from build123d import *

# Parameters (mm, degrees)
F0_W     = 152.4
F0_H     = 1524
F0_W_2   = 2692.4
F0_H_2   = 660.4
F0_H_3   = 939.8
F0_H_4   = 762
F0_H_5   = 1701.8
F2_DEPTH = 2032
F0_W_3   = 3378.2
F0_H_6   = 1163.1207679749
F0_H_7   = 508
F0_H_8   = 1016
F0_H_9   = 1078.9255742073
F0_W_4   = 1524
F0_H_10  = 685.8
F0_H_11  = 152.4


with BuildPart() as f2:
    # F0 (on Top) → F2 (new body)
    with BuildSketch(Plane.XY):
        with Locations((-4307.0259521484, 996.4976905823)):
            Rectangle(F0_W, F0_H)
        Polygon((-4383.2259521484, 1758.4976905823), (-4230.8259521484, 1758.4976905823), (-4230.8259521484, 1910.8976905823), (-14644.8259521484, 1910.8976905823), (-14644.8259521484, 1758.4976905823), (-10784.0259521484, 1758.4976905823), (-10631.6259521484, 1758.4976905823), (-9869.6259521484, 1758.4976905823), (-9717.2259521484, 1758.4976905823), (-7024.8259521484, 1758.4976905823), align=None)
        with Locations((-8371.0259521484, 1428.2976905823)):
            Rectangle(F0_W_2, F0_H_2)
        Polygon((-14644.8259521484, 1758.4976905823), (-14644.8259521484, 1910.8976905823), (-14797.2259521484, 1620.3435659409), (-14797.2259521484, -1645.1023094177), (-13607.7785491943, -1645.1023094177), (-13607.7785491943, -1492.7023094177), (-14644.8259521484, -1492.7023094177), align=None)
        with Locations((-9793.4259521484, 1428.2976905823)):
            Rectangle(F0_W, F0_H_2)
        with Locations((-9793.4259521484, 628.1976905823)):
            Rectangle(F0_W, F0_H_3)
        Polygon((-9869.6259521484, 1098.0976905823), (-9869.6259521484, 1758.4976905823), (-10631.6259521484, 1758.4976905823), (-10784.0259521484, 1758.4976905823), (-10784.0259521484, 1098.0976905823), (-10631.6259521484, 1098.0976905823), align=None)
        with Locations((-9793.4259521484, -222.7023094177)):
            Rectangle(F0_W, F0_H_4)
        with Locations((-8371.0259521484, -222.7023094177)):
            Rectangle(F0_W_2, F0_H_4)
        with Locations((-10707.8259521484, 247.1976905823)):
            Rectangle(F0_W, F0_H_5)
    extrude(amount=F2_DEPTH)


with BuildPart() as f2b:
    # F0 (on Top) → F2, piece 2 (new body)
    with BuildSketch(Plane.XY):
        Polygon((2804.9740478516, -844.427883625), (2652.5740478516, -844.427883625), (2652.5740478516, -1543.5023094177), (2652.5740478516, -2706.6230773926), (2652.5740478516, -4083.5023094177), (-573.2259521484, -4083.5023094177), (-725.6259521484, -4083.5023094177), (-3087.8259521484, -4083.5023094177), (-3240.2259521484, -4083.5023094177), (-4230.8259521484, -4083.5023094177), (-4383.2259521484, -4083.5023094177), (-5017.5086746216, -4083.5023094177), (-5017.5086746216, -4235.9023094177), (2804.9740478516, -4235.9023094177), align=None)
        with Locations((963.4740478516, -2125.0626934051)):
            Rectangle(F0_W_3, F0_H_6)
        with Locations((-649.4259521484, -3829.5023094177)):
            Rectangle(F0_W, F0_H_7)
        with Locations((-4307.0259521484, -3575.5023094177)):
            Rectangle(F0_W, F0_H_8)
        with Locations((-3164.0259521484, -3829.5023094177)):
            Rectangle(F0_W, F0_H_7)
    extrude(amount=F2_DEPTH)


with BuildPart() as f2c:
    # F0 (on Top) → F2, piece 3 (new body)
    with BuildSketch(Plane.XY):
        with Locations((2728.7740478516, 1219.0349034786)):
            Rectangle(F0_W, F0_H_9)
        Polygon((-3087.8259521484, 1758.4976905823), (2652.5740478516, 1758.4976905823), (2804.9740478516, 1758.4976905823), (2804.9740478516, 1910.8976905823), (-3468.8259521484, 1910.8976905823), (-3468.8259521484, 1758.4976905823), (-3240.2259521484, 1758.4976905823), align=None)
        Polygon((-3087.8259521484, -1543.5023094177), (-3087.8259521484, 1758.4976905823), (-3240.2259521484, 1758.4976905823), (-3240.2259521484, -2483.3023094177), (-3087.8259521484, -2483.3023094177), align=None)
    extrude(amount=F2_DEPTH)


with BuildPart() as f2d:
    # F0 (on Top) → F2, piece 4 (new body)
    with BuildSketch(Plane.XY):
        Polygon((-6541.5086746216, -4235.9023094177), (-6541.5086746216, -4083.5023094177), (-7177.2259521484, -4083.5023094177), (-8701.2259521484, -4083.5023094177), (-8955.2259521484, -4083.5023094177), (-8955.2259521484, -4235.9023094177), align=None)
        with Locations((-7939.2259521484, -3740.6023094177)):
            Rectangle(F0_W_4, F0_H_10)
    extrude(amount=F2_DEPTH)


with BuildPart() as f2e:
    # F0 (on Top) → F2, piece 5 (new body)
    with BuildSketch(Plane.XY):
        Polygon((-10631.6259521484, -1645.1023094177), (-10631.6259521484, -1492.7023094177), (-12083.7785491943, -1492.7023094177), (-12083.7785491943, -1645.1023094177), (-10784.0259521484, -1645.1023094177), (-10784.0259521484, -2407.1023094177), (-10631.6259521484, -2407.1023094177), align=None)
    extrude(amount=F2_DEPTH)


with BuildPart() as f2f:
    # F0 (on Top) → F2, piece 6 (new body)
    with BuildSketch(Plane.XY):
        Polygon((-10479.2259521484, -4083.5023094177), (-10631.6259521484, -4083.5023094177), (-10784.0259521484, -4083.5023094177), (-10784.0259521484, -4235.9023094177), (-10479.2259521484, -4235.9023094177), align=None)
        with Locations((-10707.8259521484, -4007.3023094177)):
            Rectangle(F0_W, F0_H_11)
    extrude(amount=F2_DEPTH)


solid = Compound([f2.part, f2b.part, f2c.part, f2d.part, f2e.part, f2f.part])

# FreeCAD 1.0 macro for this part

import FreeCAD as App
import Part
import Sketcher
from FreeCAD import Vector
Q = App.Units.Quantity

doc = App.newDocument("Part")
body = doc.addObject("PartDesign::Body", "Body")

sketch1 = doc.addObject("Sketcher::SketchObject", "Sketch")
body.addObject(sketch1)
sketch1.AttachmentSupport = (doc.XY_Plane, [""])
sketch1.MapMode = "FlatFace"
sketch1.addGeometry([
    Part.LineSegment(Vector(-4383, 1758, 0), Vector(-4383, 234, 0)),
    Part.LineSegment(Vector(-4383, 234, 0), Vector(-4231, 234, 0)),
    Part.LineSegment(Vector(-4231, 234, 0), Vector(-4231, 1911, 0)),
    Part.LineSegment(Vector(-4231, 1911, 0), Vector(-14645, 1911, 0)),
    Part.LineSegment(Vector(-14645, 1911, 0), Vector(-14797, 1620, 0)),
    Part.LineSegment(Vector(-14797, 1620, 0), Vector(-14797, -1645, 0)),
    Part.LineSegment(Vector(-14797, -1645, 0), Vector(-13608, -1645, 0)),
    Part.LineSegment(Vector(-13608, -1645, 0), Vector(-13608, -1493, 0)),
    Part.LineSegment(Vector(-13608, -1493, 0), Vector(-14645, -1493, 0)),
    Part.LineSegment(Vector(-14645, -1493, 0), Vector(-14645, 1758, 0)),
    Part.LineSegment(Vector(-14645, 1758, 0), Vector(-10784, 1758, 0)),
    Part.LineSegment(Vector(-10784, 1758, 0), Vector(-10784, -604, 0)),
    Part.LineSegment(Vector(-10784, -604, 0), Vector(-10632, -604, 0)),
    Part.LineSegment(Vector(-10632, -604, 0), Vector(-10632, 1098, 0)),
    Part.LineSegment(Vector(-10632, 1098, 0), Vector(-9870, 1098, 0)),
    Part.LineSegment(Vector(-9870, 1098, 0), Vector(-9870, -604, 0)),
    Part.LineSegment(Vector(-9870, -604, 0), Vector(-7025, -604, 0)),
    Part.LineSegment(Vector(-7025, -604, 0), Vector(-7025, 158, 0)),
    Part.LineSegment(Vector(-7025, 158, 0), Vector(-9717, 158, 0)),
    Part.LineSegment(Vector(-9717, 158, 0), Vector(-9717, 1098, 0)),
    Part.LineSegment(Vector(-9717, 1098, 0), Vector(-7025, 1098, 0)),
    Part.LineSegment(Vector(-7025, 1098, 0), Vector(-7025, 1758, 0)),
    Part.LineSegment(Vector(-7025, 1758, 0), Vector(-4383, 1758, 0)),
], False)
sketch1.addConstraint([
    Sketcher.Constraint("Coincident", 0, 2, 1, 1),
    Sketcher.Constraint("Coincident", 1, 2, 2, 1),
    Sketcher.Constraint("Coincident", 2, 2, 3, 1),
    Sketcher.Constraint("Coincident", 3, 2, 4, 1),
    Sketcher.Constraint("Coincident", 4, 2, 5, 1),
    Sketcher.Constraint("Coincident", 5, 2, 6, 1),
    Sketcher.Constraint("Coincident", 6, 2, 7, 1),
    Sketcher.Constraint("Coincident", 7, 2, 8, 1),
    Sketcher.Constraint("Coincident", 8, 2, 9, 1),
    Sketcher.Constraint("Coincident", 9, 2, 10, 1),
    Sketcher.Constraint("Coincident", 10, 2, 11, 1),
    Sketcher.Constraint("Coincident", 11, 2, 12, 1),
    Sketcher.Constraint("Coincident", 12, 2, 13, 1),
    Sketcher.Constraint("Coincident", 13, 2, 14, 1),
    Sketcher.Constraint("Coincident", 14, 2, 15, 1),
    Sketcher.Constraint("Coincident", 15, 2, 16, 1),
    Sketcher.Constraint("Coincident", 16, 2, 17, 1),
    Sketcher.Constraint("Coincident", 17, 2, 18, 1),
    Sketcher.Constraint("Coincident", 18, 2, 19, 1),
    Sketcher.Constraint("Coincident", 19, 2, 20, 1),
    Sketcher.Constraint("Coincident", 20, 2, 21, 1),
    Sketcher.Constraint("Coincident", 21, 2, 22, 1),
    Sketcher.Constraint("Coincident", 22, 2, 0, 1),
    Sketcher.Constraint("Vertical", 0),
    Sketcher.Constraint("Horizontal", 1),
    Sketcher.Constraint("Vertical", 2),
    Sketcher.Constraint("Horizontal", 3),
    Sketcher.Constraint("Vertical", 5),
    Sketcher.Constraint("Horizontal", 6),
    Sketcher.Constraint("Vertical", 7),
    Sketcher.Constraint("Horizontal", 8),
    Sketcher.Constraint("Vertical", 9),
    Sketcher.Constraint("Horizontal", 10),
    Sketcher.Constraint("Vertical", 11),
    Sketcher.Constraint("Horizontal", 12),
    Sketcher.Constraint("Vertical", 13),
    Sketcher.Constraint("Horizontal", 14),
    Sketcher.Constraint("Vertical", 15),
    Sketcher.Constraint("Horizontal", 16),
    Sketcher.Constraint("Vertical", 17),
    Sketcher.Constraint("Horizontal", 18),
    Sketcher.Constraint("Vertical", 19),
    Sketcher.Constraint("Horizontal", 20),
    Sketcher.Constraint("Vertical", 21),
    Sketcher.Constraint("Horizontal", 22),
    Sketcher.Constraint("Horizontal", 12, 2, 15, 2),
    Sketcher.Constraint("Horizontal", 14, 2, 19, 2),
    Sketcher.Constraint("Horizontal", 10, 2, 21, 2),
    Sketcher.Constraint("Vertical", 3, 2, 8, 2),
    Sketcher.Constraint("Vertical", 17, 2, 20, 2),
    Sketcher.Constraint("Equal", 1, 12),
    Sketcher.Constraint("Equal", 12, 7),
    Sketcher.Constraint("Equal", 14, 17),
    Sketcher.Constraint("DistanceX", 1, 1, 1, 2, Q("6 in")),
    Sketcher.Constraint("DistanceX", 3, 2, 3, 1, Q("410 in")),
    Sketcher.Constraint("DistanceX", 10, 1, 10, 2, Q("152 in")),
    Sketcher.Constraint("DistanceX", 14, 1, 14, 2, Q("30 in")),
    Sketcher.Constraint("DistanceX", 16, 1, 16, 2, Q("112 in")),
    Sketcher.Constraint("DistanceX", 18, 2, 18, 1, Q("106 in")),
    Sketcher.Constraint("DistanceY", 0, 2, 0, 1, Q("60 in")),
    Sketcher.Constraint("DistanceY", 2, 1, 2, 2, Q("66 in")),
    Sketcher.Constraint("DistanceY", 9, 1, 9, 2, Q("128 in")),
    Sketcher.Constraint("DistanceY", 11, 2, 11, 1, Q("93 in")),
    Sketcher.Constraint("DistanceY", 13, 1, 13, 2, Q("67 in")),
    Sketcher.Constraint("DistanceX", 4, 2, 3, 2, Q("6 in")),
    Sketcher.Constraint("DistanceX", 6, 1, 6, 2, 1189.447403),
    Sketcher.Constraint("DistanceY", 5, 2, 5, 1, 3265.445875),
    Sketcher.Constraint("DistanceY", -1, 1, 0, 2, 234.497691),
    Sketcher.Constraint("DistanceX", 6, 2, -1, 1, 13607.778549),
])
pad1 = doc.addObject("PartDesign::Pad", "Pad")
body.addObject(pad1)
pad1.Profile = sketch1
pad1.Length = Q("80 in")
body2 = doc.addObject("PartDesign::Body", "Body001")

sketch2 = doc.addObject("Sketcher::SketchObject", "Sketch001")
body2.addObject(sketch2)
sketch2.AttachmentSupport = (doc.getObject("XY_Plane001"), [""])
sketch2.MapMode = "FlatFace"
sketch2.addGeometry([
    Part.LineSegment(Vector(2805, -844, 0), Vector(2653, -844, 0)),
    Part.LineSegment(Vector(2653, -844, 0), Vector(2653, -1544, 0)),
    Part.LineSegment(Vector(2653, -1544, 0), Vector(-726, -1544, 0)),
    Part.LineSegment(Vector(-726, -1544, 0), Vector(-726, -2707, 0)),
    Part.LineSegment(Vector(-726, -2707, 0), Vector(2653, -2707, 0)),
    Part.LineSegment(Vector(2653, -2707, 0), Vector(2653, -4084, 0)),
    Part.LineSegment(Vector(2653, -4084, 0), Vector(-573, -4084, 0)),
    Part.LineSegment(Vector(-573, -4084, 0), Vector(-573, -3576, 0)),
    Part.LineSegment(Vector(-573, -3576, 0), Vector(-726, -3576, 0)),
    Part.LineSegment(Vector(-726, -3576, 0), Vector(-726, -4084, 0)),
    Part.LineSegment(Vector(-726, -4084, 0), Vector(-3088, -4084, 0)),
    Part.LineSegment(Vector(-3088, -4084, 0), Vector(-3088, -3576, 0)),
    Part.LineSegment(Vector(-3088, -3576, 0), Vector(-3240, -3576, 0)),
    Part.LineSegment(Vector(-3240, -3576, 0), Vector(-3240, -4084, 0)),
    Part.LineSegment(Vector(-3240, -4084, 0), Vector(-4231, -4084, 0)),
    Part.LineSegment(Vector(-4231, -4084, 0), Vector(-4231, -3068, 0)),
    Part.LineSegment(Vector(-4231, -3068, 0), Vector(-4383, -3068, 0)),
    Part.LineSegment(Vector(-4383, -3068, 0), Vector(-4383, -4084, 0)),
    Part.LineSegment(Vector(-4383, -4084, 0), Vector(-5018, -4084, 0)),
    Part.LineSegment(Vector(-5018, -4084, 0), Vector(-5018, -4236, 0)),
    Part.LineSegment(Vector(-5018, -4236, 0), Vector(2805, -4236, 0)),
    Part.LineSegment(Vector(2805, -4236, 0), Vector(2805, -844, 0)),
], False)
sketch2.addConstraint([
    Sketcher.Constraint("Coincident", 0, 2, 1, 1),
    Sketcher.Constraint("Coincident", 1, 2, 2, 1),
    Sketcher.Constraint("Coincident", 2, 2, 3, 1),
    Sketcher.Constraint("Coincident", 3, 2, 4, 1),
    Sketcher.Constraint("Coincident", 4, 2, 5, 1),
    Sketcher.Constraint("Coincident", 5, 2, 6, 1),
    Sketcher.Constraint("Coincident", 6, 2, 7, 1),
    Sketcher.Constraint("Coincident", 7, 2, 8, 1),
    Sketcher.Constraint("Coincident", 8, 2, 9, 1),
    Sketcher.Constraint("Coincident", 9, 2, 10, 1),
    Sketcher.Constraint("Coincident", 10, 2, 11, 1),
    Sketcher.Constraint("Coincident", 11, 2, 12, 1),
    Sketcher.Constraint("Coincident", 12, 2, 13, 1),
    Sketcher.Constraint("Coincident", 13, 2, 14, 1),
    Sketcher.Constraint("Coincident", 14, 2, 15, 1),
    Sketcher.Constraint("Coincident", 15, 2, 16, 1),
    Sketcher.Constraint("Coincident", 16, 2, 17, 1),
    Sketcher.Constraint("Coincident", 17, 2, 18, 1),
    Sketcher.Constraint("Coincident", 18, 2, 19, 1),
    Sketcher.Constraint("Coincident", 19, 2, 20, 1),
    Sketcher.Constraint("Coincident", 20, 2, 21, 1),
    Sketcher.Constraint("Coincident", 21, 2, 0, 1),
    Sketcher.Constraint("Horizontal", 0),
    Sketcher.Constraint("Vertical", 1),
    Sketcher.Constraint("Horizontal", 2),
    Sketcher.Constraint("Vertical", 3),
    Sketcher.Constraint("Horizontal", 4),
    Sketcher.Constraint("Vertical", 5),
    Sketcher.Constraint("Horizontal", 6),
    Sketcher.Constraint("Vertical", 7),
    Sketcher.Constraint("Horizontal", 8),
    Sketcher.Constraint("Vertical", 9),
    Sketcher.Constraint("Horizontal", 10),
    Sketcher.Constraint("Vertical", 11),
    Sketcher.Constraint("Horizontal", 12),
    Sketcher.Constraint("Vertical", 13),
    Sketcher.Constraint("Horizontal", 14),
    Sketcher.Constraint("Vertical", 15),
    Sketcher.Constraint("Horizontal", 16),
    Sketcher.Constraint("Vertical", 17),
    Sketcher.Constraint("Horizontal", 18),
    Sketcher.Constraint("Vertical", 19),
    Sketcher.Constraint("Horizontal", 20),
    Sketcher.Constraint("Vertical", 21),
    Sketcher.Constraint("Horizontal", 6, 2, 9, 2),
    Sketcher.Constraint("Horizontal", 8, 2, 11, 2),
    Sketcher.Constraint("Horizontal", 10, 2, 13, 2),
    Sketcher.Constraint("Horizontal", 14, 2, 17, 2),
    Sketcher.Constraint("Vertical", 1, 2, 4, 2),
    Sketcher.Constraint("Vertical", 3, 2, 8, 2),
    Sketcher.Constraint("Equal", 0, 8),
    Sketcher.Constraint("Equal", 8, 12),
    Sketcher.Constraint("Equal", 12, 16),
    Sketcher.Constraint("Equal", 16, 19),
    Sketcher.Constraint("DistanceX", 0, 2, 0, 1, Q("6 in")),
    Sketcher.Constraint("DistanceX", 2, 2, 2, 1, Q("133 in")),
    Sketcher.Constraint("DistanceX", 10, 2, 10, 1, Q("93 in")),
    Sketcher.Constraint("DistanceX", 14, 2, 14, 1, Q("39 in")),
    Sketcher.Constraint("DistanceY", 7, 1, 7, 2, Q("20 in")),
    Sketcher.Constraint("DistanceY", 15, 1, 15, 2, Q("40 in")),
    Sketcher.Constraint("DistanceY", 5, 2, 1, 2, Q("100 in")),
    Sketcher.Constraint("DistanceX", 18, 2, 18, 1, 634.282722),
    Sketcher.Constraint("DistanceY", 1, 2, 1, 1, 699.074426),
    Sketcher.Constraint("DistanceY", 3, 2, 3, 1, 1163.120768),
    Sketcher.Constraint("DistanceY", 1, 2, -1, 1, 1543.502309),
    Sketcher.Constraint("DistanceX", -1, 1, 0, 2, 2652.574048),
])
pad2 = doc.addObject("PartDesign::Pad", "Pad001")
body2.addObject(pad2)
pad2.Profile = sketch2
pad2.Length = Q("80 in")
body3 = doc.addObject("PartDesign::Body", "Body002")

sketch3 = doc.addObject("Sketcher::SketchObject", "Sketch002")
body3.addObject(sketch3)
sketch3.AttachmentSupport = (doc.getObject("XY_Plane002"), [""])
sketch3.MapMode = "FlatFace"
sketch3.addGeometry([
    Part.LineSegment(Vector(2653, 1758, 0), Vector(2653, 680, 0)),
    Part.LineSegment(Vector(2653, 680, 0), Vector(2805, 680, 0)),
    Part.LineSegment(Vector(2805, 680, 0), Vector(2805, 1911, 0)),
    Part.LineSegment(Vector(2805, 1911, 0), Vector(-3469, 1911, 0)),
    Part.LineSegment(Vector(-3469, 1911, 0), Vector(-3469, 1758, 0)),
    Part.LineSegment(Vector(-3469, 1758, 0), Vector(-3240, 1758, 0)),
    Part.LineSegment(Vector(-3240, 1758, 0), Vector(-3240, -2483, 0)),
    Part.LineSegment(Vector(-3240, -2483, 0), Vector(-3088, -2483, 0)),
    Part.LineSegment(Vector(-3088, -2483, 0), Vector(-3088, 1758, 0)),
    Part.LineSegment(Vector(-3088, 1758, 0), Vector(2653, 1758, 0)),
], False)
sketch3.addConstraint([
    Sketcher.Constraint("Coincident", 0, 2, 1, 1),
    Sketcher.Constraint("Coincident", 1, 2, 2, 1),
    Sketcher.Constraint("Coincident", 2, 2, 3, 1),
    Sketcher.Constraint("Coincident", 3, 2, 4, 1),
    Sketcher.Constraint("Coincident", 4, 2, 5, 1),
    Sketcher.Constraint("Coincident", 5, 2, 6, 1),
    Sketcher.Constraint("Coincident", 6, 2, 7, 1),
    Sketcher.Constraint("Coincident", 7, 2, 8, 1),
    Sketcher.Constraint("Coincident", 8, 2, 9, 1),
    Sketcher.Constraint("Coincident", 9, 2, 0, 1),
    Sketcher.Constraint("Vertical", 0),
    Sketcher.Constraint("Horizontal", 1),
    Sketcher.Constraint("Vertical", 2),
    Sketcher.Constraint("Horizontal", 3),
    Sketcher.Constraint("Vertical", 4),
    Sketcher.Constraint("Horizontal", 5),
    Sketcher.Constraint("Vertical", 6),
    Sketcher.Constraint("Horizontal", 7),
    Sketcher.Constraint("Vertical", 8),
    Sketcher.Constraint("Horizontal", 9),
    Sketcher.Constraint("Horizontal", 5, 2, 8, 2),
    Sketcher.Constraint("Equal", 1, 7),
    Sketcher.Constraint("Equal", 7, 4),
    Sketcher.Constraint("DistanceX", 1, 1, 1, 2, Q("6 in")),
    Sketcher.Constraint("DistanceX", 3, 2, 3, 1, Q("247 in")),
    Sketcher.Constraint("DistanceX", 5, 1, 5, 2, Q("9 in")),
    Sketcher.Constraint("DistanceY", 6, 2, 6, 1, Q("167 in")),
    Sketcher.Constraint("DistanceY", 0, 2, 0, 1, 1078.925574),
    Sketcher.Constraint("DistanceY", -1, 1, 2, 2, 1910.897691),
    Sketcher.Constraint("DistanceX", -1, 1, 0, 2, 2652.574048),
])
pad3 = doc.addObject("PartDesign::Pad", "Pad002")
body3.addObject(pad3)
pad3.Profile = sketch3
pad3.Length = Q("80 in")
body4 = doc.addObject("PartDesign::Body", "Body003")

sketch4 = doc.addObject("Sketcher::SketchObject", "Sketch003")
body4.addObject(sketch4)
sketch4.AttachmentSupport = (doc.getObject("XY_Plane003"), [""])
sketch4.MapMode = "FlatFace"
sketch4.addGeometry([
    Part.LineSegment(Vector(-6542, -4236, 0), Vector(-6542, -4084, 0)),
    Part.LineSegment(Vector(-6542, -4084, 0), Vector(-7177, -4084, 0)),
    Part.LineSegment(Vector(-7177, -4084, 0), Vector(-7177, -3398, 0)),
    Part.LineSegment(Vector(-7177, -3398, 0), Vector(-8701, -3398, 0)),
    Part.LineSegment(Vector(-8701, -3398, 0), Vector(-8701, -4084, 0)),
    Part.LineSegment(Vector(-8701, -4084, 0), Vector(-8955, -4084, 0)),
    Part.LineSegment(Vector(-8955, -4084, 0), Vector(-8955, -4236, 0)),
    Part.LineSegment(Vector(-8955, -4236, 0), Vector(-6542, -4236, 0)),
], False)
sketch4.addConstraint([
    Sketcher.Constraint("Coincident", 0, 2, 1, 1),
    Sketcher.Constraint("Coincident", 1, 2, 2, 1),
    Sketcher.Constraint("Coincident", 2, 2, 3, 1),
    Sketcher.Constraint("Coincident", 3, 2, 4, 1),
    Sketcher.Constraint("Coincident", 4, 2, 5, 1),
    Sketcher.Constraint("Coincident", 5, 2, 6, 1),
    Sketcher.Constraint("Coincident", 6, 2, 7, 1),
    Sketcher.Constraint("Coincident", 7, 2, 0, 1),
    Sketcher.Constraint("Vertical", 0),
    Sketcher.Constraint("Horizontal", 1),
    Sketcher.Constraint("Vertical", 2),
    Sketcher.Constraint("Horizontal", 3),
    Sketcher.Constraint("Vertical", 4),
    Sketcher.Constraint("Horizontal", 5),
    Sketcher.Constraint("Vertical", 6),
    Sketcher.Constraint("Horizontal", 7),
    Sketcher.Constraint("Horizontal", 1, 2, 4, 2),
    Sketcher.Constraint("DistanceX", 3, 2, 3, 1, Q("60 in")),
    Sketcher.Constraint("DistanceX", 5, 2, 5, 1, Q("10 in")),
    Sketcher.Constraint("DistanceY", 0, 1, 0, 2, Q("6 in")),
    Sketcher.Constraint("DistanceY", 2, 1, 2, 2, Q("27 in")),
    Sketcher.Constraint("DistanceX", 1, 2, 1, 1, 635.717278),
    Sketcher.Constraint("DistanceY", 0, 2, -1, 1, 4083.502309),
    Sketcher.Constraint("DistanceX", 0, 2, -1, 1, 6541.508675),
])
pad4 = doc.addObject("PartDesign::Pad", "Pad003")
body4.addObject(pad4)
pad4.Profile = sketch4
pad4.Length = Q("80 in")
body5 = doc.addObject("PartDesign::Body", "Body004")

sketch5 = doc.addObject("Sketcher::SketchObject", "Sketch004")
body5.addObject(sketch5)
sketch5.AttachmentSupport = (doc.getObject("XY_Plane004"), [""])
sketch5.MapMode = "FlatFace"
sketch5.addGeometry([
    Part.LineSegment(Vector(-10632, -1493, 0), Vector(-12084, -1493, 0)),
    Part.LineSegment(Vector(-12084, -1493, 0), Vector(-12084, -1645, 0)),
    Part.LineSegment(Vector(-12084, -1645, 0), Vector(-10784, -1645, 0)),
    Part.LineSegment(Vector(-10784, -1645, 0), Vector(-10784, -2407, 0)),
    Part.LineSegment(Vector(-10784, -2407, 0), Vector(-10632, -2407, 0)),
    Part.LineSegment(Vector(-10632, -2407, 0), Vector(-10632, -1493, 0)),
], False)
sketch5.addConstraint([
    Sketcher.Constraint("Coincident", 0, 2, 1, 1),
    Sketcher.Constraint("Coincident", 1, 2, 2, 1),
    Sketcher.Constraint("Coincident", 2, 2, 3, 1),
    Sketcher.Constraint("Coincident", 3, 2, 4, 1),
    Sketcher.Constraint("Coincident", 4, 2, 5, 1),
    Sketcher.Constraint("Coincident", 5, 2, 0, 1),
    Sketcher.Constraint("Horizontal", 0),
    Sketcher.Constraint("Vertical", 1),
    Sketcher.Constraint("Horizontal", 2),
    Sketcher.Constraint("Vertical", 3),
    Sketcher.Constraint("Horizontal", 4),
    Sketcher.Constraint("Vertical", 5),
    Sketcher.Constraint("Equal", 4, 1),
    Sketcher.Constraint("DistanceX", 4, 1, 4, 2, Q("6 in")),
    Sketcher.Constraint("DistanceY", 3, 2, 3, 1, Q("30 in")),
    Sketcher.Constraint("DistanceX", 0, 2, 0, 1, 1452.152597),
    Sketcher.Constraint("DistanceX", 0, 2, -1, 1, 12083.778549),
    Sketcher.Constraint("DistanceY", 0, 2, -1, 1, 1492.702309),
])
pad5 = doc.addObject("PartDesign::Pad", "Pad004")
body5.addObject(pad5)
pad5.Profile = sketch5
pad5.Length = Q("80 in")
body6 = doc.addObject("PartDesign::Body", "Body005")

sketch6 = doc.addObject("Sketcher::SketchObject", "Sketch005")
body6.addObject(sketch6)
sketch6.AttachmentSupport = (doc.getObject("XY_Plane005"), [""])
sketch6.MapMode = "FlatFace"
sketch6.addGeometry([
    Part.LineSegment(Vector(-10479, -4084, 0), Vector(-10632, -4084, 0)),
    Part.LineSegment(Vector(-10632, -4084, 0), Vector(-10632, -3931, 0)),
    Part.LineSegment(Vector(-10632, -3931, 0), Vector(-10784, -3931, 0)),
    Part.LineSegment(Vector(-10784, -3931, 0), Vector(-10784, -4236, 0)),
    Part.LineSegment(Vector(-10784, -4236, 0), Vector(-10479, -4236, 0)),
    Part.LineSegment(Vector(-10479, -4236, 0), Vector(-10479, -4084, 0)),
], False)
sketch6.addConstraint([
    Sketcher.Constraint("Coincident", 0, 2, 1, 1),
    Sketcher.Constraint("Coincident", 1, 2, 2, 1),
    Sketcher.Constraint("Coincident", 2, 2, 3, 1),
    Sketcher.Constraint("Coincident", 3, 2, 4, 1),
    Sketcher.Constraint("Coincident", 4, 2, 5, 1),
    Sketcher.Constraint("Coincident", 5, 2, 0, 1),
    Sketcher.Constraint("Horizontal", 0),
    Sketcher.Constraint("Vertical", 1),
    Sketcher.Constraint("Horizontal", 2),
    Sketcher.Constraint("Vertical", 3),
    Sketcher.Constraint("Horizontal", 4),
    Sketcher.Constraint("Vertical", 5),
    Sketcher.Constraint("Equal", 0, 2),
    Sketcher.Constraint("Equal", 2, 1),
    Sketcher.Constraint("Equal", 4, 3),
    Sketcher.Constraint("DistanceX", 0, 2, 0, 1, Q("6 in")),
    Sketcher.Constraint("DistanceY", 0, 2, -1, 1, 4083.502309),
    Sketcher.Constraint("DistanceX", 0, 2, -1, 1, 10631.625952),
])
pad6 = doc.addObject("PartDesign::Pad", "Pad005")
body6.addObject(pad6)
pad6.Profile = sketch6
pad6.Length = Q("80 in")

doc.recompute()
